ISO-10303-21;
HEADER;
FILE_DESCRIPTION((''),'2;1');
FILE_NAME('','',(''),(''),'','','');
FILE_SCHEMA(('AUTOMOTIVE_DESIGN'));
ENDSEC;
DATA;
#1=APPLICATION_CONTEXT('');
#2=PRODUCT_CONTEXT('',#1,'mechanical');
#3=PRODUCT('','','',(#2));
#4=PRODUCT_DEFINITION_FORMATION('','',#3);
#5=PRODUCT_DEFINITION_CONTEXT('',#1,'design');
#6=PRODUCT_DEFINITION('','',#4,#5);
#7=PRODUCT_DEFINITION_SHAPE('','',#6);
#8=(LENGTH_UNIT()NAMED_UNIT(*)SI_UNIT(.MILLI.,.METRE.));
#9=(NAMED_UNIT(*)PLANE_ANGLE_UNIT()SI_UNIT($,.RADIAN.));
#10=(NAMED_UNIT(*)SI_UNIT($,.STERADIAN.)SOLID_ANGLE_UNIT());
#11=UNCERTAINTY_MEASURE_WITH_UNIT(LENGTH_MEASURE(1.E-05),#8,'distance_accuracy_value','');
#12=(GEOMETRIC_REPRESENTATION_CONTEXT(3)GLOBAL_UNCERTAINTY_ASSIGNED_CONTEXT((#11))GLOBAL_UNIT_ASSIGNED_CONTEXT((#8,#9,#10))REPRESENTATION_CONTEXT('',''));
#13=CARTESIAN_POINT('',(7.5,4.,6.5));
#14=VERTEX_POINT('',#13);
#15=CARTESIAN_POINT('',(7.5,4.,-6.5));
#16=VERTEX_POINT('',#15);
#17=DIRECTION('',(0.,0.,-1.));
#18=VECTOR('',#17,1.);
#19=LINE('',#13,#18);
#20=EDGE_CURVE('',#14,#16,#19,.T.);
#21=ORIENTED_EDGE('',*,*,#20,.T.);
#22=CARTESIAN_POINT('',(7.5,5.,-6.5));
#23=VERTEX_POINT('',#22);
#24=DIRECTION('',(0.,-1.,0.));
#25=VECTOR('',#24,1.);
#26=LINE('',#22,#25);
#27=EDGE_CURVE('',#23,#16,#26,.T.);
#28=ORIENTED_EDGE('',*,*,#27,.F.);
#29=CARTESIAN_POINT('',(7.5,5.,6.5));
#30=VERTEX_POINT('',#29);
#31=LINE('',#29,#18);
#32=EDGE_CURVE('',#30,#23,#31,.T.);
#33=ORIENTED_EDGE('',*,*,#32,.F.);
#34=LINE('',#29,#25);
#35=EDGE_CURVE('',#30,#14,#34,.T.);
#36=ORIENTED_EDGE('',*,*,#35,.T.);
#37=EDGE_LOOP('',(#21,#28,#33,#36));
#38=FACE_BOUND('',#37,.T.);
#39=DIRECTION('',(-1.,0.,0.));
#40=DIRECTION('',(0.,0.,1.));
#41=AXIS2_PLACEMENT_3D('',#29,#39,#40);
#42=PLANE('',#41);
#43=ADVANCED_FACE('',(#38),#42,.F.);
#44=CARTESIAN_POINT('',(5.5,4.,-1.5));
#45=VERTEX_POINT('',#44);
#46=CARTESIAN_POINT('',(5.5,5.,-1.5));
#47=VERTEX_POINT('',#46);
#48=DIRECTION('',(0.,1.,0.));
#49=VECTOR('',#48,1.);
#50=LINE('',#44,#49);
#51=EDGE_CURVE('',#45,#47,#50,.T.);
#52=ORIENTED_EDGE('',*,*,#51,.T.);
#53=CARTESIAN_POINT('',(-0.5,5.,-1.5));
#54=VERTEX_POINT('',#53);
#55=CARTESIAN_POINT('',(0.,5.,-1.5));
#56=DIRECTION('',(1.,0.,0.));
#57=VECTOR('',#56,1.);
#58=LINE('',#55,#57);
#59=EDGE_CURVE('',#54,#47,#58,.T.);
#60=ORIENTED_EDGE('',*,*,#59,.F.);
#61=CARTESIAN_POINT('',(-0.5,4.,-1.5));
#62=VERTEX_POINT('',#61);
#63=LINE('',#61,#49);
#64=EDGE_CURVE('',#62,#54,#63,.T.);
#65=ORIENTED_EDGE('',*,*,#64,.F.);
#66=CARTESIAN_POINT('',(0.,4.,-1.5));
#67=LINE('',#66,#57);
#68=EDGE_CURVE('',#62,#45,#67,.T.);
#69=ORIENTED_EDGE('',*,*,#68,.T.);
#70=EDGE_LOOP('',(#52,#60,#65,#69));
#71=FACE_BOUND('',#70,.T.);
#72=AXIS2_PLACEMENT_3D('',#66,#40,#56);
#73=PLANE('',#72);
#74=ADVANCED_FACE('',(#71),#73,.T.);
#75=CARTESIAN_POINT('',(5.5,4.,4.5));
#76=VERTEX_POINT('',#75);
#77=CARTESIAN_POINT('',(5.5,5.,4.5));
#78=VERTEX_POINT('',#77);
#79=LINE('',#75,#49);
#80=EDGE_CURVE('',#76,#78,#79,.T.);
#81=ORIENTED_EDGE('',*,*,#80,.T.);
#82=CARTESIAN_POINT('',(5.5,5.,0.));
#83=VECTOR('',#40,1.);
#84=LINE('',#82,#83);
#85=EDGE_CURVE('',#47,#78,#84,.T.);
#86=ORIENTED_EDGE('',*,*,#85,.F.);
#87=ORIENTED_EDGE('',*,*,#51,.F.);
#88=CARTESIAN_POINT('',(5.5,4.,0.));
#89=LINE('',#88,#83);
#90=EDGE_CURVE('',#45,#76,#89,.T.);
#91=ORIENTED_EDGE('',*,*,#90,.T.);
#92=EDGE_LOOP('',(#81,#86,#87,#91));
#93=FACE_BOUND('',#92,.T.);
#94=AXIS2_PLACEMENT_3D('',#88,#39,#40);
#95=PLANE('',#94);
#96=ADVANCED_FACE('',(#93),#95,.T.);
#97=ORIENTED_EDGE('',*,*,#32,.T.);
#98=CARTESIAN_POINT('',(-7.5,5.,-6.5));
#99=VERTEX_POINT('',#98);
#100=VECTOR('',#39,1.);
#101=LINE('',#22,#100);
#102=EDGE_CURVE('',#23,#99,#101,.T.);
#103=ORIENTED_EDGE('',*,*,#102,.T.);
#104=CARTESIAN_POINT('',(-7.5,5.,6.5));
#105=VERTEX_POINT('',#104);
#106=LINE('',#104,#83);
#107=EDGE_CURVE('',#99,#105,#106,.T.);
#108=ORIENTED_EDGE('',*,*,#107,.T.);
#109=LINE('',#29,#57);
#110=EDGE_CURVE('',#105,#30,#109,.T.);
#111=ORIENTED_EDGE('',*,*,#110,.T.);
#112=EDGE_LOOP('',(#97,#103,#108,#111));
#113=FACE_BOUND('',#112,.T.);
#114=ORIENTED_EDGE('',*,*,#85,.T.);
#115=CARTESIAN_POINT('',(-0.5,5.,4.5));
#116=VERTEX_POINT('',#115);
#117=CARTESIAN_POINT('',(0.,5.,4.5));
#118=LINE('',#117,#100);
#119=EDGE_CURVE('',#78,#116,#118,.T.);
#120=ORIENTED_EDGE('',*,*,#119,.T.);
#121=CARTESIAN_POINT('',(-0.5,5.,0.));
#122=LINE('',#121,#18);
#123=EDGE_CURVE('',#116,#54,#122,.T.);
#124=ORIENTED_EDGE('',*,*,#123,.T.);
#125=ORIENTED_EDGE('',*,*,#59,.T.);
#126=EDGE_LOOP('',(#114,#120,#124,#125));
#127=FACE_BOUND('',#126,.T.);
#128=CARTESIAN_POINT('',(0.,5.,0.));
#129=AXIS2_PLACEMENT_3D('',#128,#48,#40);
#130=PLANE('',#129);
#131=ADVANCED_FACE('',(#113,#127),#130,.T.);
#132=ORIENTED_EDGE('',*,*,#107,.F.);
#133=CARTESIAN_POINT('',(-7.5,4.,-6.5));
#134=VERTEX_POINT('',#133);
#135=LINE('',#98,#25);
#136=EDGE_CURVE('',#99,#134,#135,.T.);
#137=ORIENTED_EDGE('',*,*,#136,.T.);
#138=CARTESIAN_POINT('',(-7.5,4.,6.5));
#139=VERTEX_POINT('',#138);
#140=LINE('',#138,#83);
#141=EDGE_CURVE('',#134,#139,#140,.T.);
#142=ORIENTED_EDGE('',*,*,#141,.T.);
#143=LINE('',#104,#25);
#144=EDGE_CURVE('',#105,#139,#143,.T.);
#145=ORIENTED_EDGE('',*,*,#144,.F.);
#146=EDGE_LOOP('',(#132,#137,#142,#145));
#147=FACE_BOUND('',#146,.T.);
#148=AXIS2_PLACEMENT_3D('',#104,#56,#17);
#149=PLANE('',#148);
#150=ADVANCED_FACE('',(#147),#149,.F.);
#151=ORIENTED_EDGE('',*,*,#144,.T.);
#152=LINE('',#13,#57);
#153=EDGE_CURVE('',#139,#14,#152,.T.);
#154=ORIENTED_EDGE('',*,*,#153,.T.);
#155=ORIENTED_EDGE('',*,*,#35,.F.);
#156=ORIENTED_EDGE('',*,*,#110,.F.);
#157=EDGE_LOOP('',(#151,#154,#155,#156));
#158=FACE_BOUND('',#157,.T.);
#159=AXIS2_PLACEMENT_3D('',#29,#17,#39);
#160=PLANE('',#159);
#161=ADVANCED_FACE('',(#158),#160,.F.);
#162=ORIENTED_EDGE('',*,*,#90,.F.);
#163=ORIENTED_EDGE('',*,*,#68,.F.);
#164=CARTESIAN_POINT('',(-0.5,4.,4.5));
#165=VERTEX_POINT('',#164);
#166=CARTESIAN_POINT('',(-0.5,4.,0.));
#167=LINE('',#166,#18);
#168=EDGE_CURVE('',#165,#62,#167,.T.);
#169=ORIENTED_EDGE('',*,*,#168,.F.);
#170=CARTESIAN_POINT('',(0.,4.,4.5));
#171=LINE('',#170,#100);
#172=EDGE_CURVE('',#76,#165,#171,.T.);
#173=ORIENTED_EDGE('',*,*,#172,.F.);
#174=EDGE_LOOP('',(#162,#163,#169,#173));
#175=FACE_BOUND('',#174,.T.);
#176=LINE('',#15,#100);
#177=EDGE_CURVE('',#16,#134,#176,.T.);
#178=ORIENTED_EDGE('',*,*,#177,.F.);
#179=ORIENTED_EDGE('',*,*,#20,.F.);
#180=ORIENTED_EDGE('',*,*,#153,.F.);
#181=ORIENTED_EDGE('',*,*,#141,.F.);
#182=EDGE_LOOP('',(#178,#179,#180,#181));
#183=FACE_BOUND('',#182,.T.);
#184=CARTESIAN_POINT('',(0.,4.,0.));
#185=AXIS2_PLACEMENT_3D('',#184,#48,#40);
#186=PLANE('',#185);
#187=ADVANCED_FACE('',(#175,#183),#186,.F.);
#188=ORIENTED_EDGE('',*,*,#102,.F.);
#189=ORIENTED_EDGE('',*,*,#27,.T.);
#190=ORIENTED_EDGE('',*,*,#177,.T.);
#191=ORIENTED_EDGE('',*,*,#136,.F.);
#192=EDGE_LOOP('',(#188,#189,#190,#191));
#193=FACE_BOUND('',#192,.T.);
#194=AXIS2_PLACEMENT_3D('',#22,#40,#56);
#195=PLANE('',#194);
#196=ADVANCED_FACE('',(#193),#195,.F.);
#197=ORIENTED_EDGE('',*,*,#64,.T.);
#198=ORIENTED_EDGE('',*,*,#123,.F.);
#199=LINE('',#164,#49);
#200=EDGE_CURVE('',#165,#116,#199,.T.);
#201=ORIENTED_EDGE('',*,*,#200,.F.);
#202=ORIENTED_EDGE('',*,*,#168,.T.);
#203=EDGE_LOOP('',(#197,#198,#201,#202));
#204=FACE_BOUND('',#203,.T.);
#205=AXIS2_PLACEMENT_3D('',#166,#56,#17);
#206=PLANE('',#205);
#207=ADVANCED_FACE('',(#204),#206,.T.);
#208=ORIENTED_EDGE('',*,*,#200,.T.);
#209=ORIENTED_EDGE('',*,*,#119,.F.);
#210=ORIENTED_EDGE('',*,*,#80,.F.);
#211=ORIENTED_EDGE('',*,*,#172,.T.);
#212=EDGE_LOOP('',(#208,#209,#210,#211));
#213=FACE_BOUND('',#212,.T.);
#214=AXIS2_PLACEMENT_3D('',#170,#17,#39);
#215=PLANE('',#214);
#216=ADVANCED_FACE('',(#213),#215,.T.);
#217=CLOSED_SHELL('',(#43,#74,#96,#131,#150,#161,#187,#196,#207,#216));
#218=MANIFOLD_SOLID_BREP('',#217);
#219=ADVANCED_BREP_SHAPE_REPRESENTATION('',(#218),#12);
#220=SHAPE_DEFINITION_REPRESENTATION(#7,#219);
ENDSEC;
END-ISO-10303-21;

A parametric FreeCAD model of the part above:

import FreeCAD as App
import Part
import Sketcher

doc = App.newDocument("Part")
body = doc.addObject("PartDesign::Body", "Body")

sketch1 = body.newObject("Sketcher::SketchObject", "Sketch")
sketch1.AttachmentSupport = (doc.getObject("XZ_Plane"), [""])
sketch1.MapMode = "FlatFace"
sketch1.addGeometry([
    Part.LineSegment(App.Vector(-8, -6, 0), App.Vector(-8, 6, 0)),
    Part.LineSegment(App.Vector(-8, 6, 0), App.Vector(8, 6, 0)),
    Part.LineSegment(App.Vector(8, 6, 0), App.Vector(8, -6, 0)),
    Part.LineSegment(App.Vector(8, -6, 0), App.Vector(-8, -6, 0)),
], False)
sketch1.addConstraint([
    Sketcher.Constraint("Coincident", 0, 2, 1, 1),
    Sketcher.Constraint("Coincident", 1, 2, 2, 1),
    Sketcher.Constraint("Coincident", 2, 2, 3, 1),
    Sketcher.Constraint("Coincident", 3, 2, 0, 1),
    Sketcher.Constraint("Vertical", 0),
    Sketcher.Constraint("Horizontal", 1),
    Sketcher.Constraint("Vertical", 2),
    Sketcher.Constraint("Horizontal", 3),
    Sketcher.Constraint("Symmetric", 0, 2, 2, 2, -1, 1),
    Sketcher.Constraint("DistanceX", 1, 1, 1, 2, 15.0),
    Sketcher.Constraint("DistanceY", 0, 1, 0, 2, 13.0),
])
pad1 = body.newObject("PartDesign::Pad", "Pad")
pad1.Profile = sketch1
pad1.Length = 4
pad1.Reversed = True

sketch2 = body.newObject("Sketcher::SketchObject", "Sketch001")
sketch2.AttachmentSupport = (doc.getObject("XZ_Plane"), [""])
sketch2.MapMode = "FlatFace"
sketch2.AttachmentOffset = App.Placement(App.Vector(0, 0, -1), App.Rotation())
sketch2.addGeometry([
    Part.LineSegment(App.Vector(-6, -10, 0), App.Vector(-6, 6, 0)),
    Part.LineSegment(App.Vector(-6, 6, 0), App.Vector(6, 6, 0)),
    Part.LineSegment(App.Vector(6, 6, 0), App.Vector(6, -10, 0)),
    Part.LineSegment(App.Vector(6, -10, 0), App.Vector(-6, -10, 0)),
], False)
sketch2.addConstraint([
    Sketcher.Constraint("Coincident", 0, 2, 1, 1),
    Sketcher.Constraint("Coincident", 1, 2, 2, 1),
    Sketcher.Constraint("Coincident", 2, 2, 3, 1),
    Sketcher.Constraint("Coincident", 3, 2, 0, 1),
    Sketcher.Constraint("Vertical", 0),
    Sketcher.Constraint("Horizontal", 1),
    Sketcher.Constraint("Vertical", 2),
    Sketcher.Constraint("Horizontal", 3),
    Sketcher.Constraint("DistanceX", 1, 1, 1, 2, 13.0),
    Sketcher.Constraint("DistanceY", 0, 1, 0, 2, 15.0),
    Sketcher.Constraint("DistanceX", 0, 2, -1, 1, 6.5),
    Sketcher.Constraint("DistanceY", -1, 1, 0, 2, 5.5),
])
pocket1 = body.newObject("PartDesign::Pocket", "Pocket")
pocket1.Profile = sketch2
pocket1.Length = 4

sketch3 = body.newObject("Sketcher::SketchObject", "Sketch002")
sketch3.AttachmentSupport = (doc.getObject("XZ_Plane"), [""])
sketch3.MapMode = "FlatFace"
sketch3.addGeometry([
    Part.LineSegment(App.Vector(-8, 6, 0), App.Vector(-8, -6, 0)),
    Part.LineSegment(App.Vector(-8, -6, 0), App.Vector(8, -6, 0)),
    Part.LineSegment(App.Vector(8, -6, 0), App.Vector(8, 6, 0)),
    Part.LineSegment(App.Vector(8, 6, 0), App.Vector(-8, 6, 0)),
], False)
sketch3.addConstraint([
    Sketcher.Constraint("Coincident", 0, 2, 1, 1),
    Sketcher.Constraint("Coincident", 1, 2, 2, 1),
    Sketcher.Constraint("Coincident", 2, 2, 3, 1),
    Sketcher.Constraint("Coincident", 3, 2, 0, 1),
    Sketcher.Constraint("Vertical", 0),
    Sketcher.Constraint("Horizontal", 1),
    Sketcher.Constraint("Vertical", 2),
    Sketcher.Constraint("Horizontal", 3),
    Sketcher.Constraint("Symmetric", 0, 2, 2, 2, -1, 1),
    Sketcher.Constraint("DistanceX", 1, 1, 1, 2, 15.0),
    Sketcher.Constraint("DistanceY", 0, 2, 0, 1, 13.0),
])
pocket2 = body.newObject("PartDesign::Pocket", "Pocket001")
pocket2.Profile = sketch3
pocket2.Length = 4
body2 = doc.addObject("PartDesign::Body", "Body001")

sketch4 = body2.newObject("Sketcher::SketchObject", "Sketch003")
sketch4.AttachmentSupport = (doc.getObject("XZ_Plane001"), [""])
sketch4.MapMode = "FlatFace"
sketch4.AttachmentOffset = App.Placement(App.Vector(0, 0, -4), App.Rotation())
sketch4.addGeometry([
    Part.LineSegment(App.Vector(-8, -6, 0), App.Vector(-8, 6, 0)),
    Part.LineSegment(App.Vector(-8, 6, 0), App.Vector(8, 6, 0)),
    Part.LineSegment(App.Vector(8, 6, 0), App.Vector(8, -6, 0)),
    Part.LineSegment(App.Vector(8, -6, 0), App.Vector(-8, -6, 0)),
], False)
sketch4.addConstraint([
    Sketcher.Constraint("Coincident", 0, 2, 1, 1),
    Sketcher.Constraint("Coincident", 1, 2, 2, 1),
    Sketcher.Constraint("Coincident", 2, 2, 3, 1),
    Sketcher.Constraint("Coincident", 3, 2, 0, 1),
    Sketcher.Constraint("Vertical", 0),
    Sketcher.Constraint("Horizontal", 1),
    Sketcher.Constraint("Vertical", 2),
    Sketcher.Constraint("Horizontal", 3),
    Sketcher.Constraint("Symmetric", 0, 2, 2, 2, -1, 1),
    Sketcher.Constraint("DistanceX", 1, 1, 1, 2, 15.0),
    Sketcher.Constraint("DistanceY", 0, 1, 0, 2, 13.0),
])
pad2 = body2.newObject("PartDesign::Pad", "Pad001")
pad2.Profile = sketch4
pad2.Length = 1
pad2.Reversed = True

sketch5 = body2.newObject("Sketcher::SketchObject", "Sketch004")
sketch5.AttachmentSupport = (doc.getObject("XZ_Plane001"), [""])
sketch5.MapMode = "FlatFace"
sketch5.AttachmentOffset = App.Placement(App.Vector(0, 0, -5), App.Rotation())
sketch5.addGeometry([
    Part.LineSegment(App.Vector(0, -2, 0), App.Vector(0, 4, 0)),
    Part.LineSegment(App.Vector(0, 4, 0), App.Vector(6, 4, 0)),
    Part.LineSegment(App.Vector(6, 4, 0), App.Vector(6, -2, 0)),
    Part.LineSegment(App.Vector(6, -2, 0), App.Vector(0, -2, 0)),
], False)
sketch5.addConstraint([
    Sketcher.Constraint("Coincident", 0, 2, 1, 1),
    Sketcher.Constraint("Coincident", 1, 2, 2, 1),
    Sketcher.Constraint("Coincident", 2, 2, 3, 1),
    Sketcher.Constraint("Coincident", 3, 2, 0, 1),
    Sketcher.Constraint("Vertical", 0),
    Sketcher.Constraint("Horizontal", 1),
    Sketcher.Constraint("Vertical", 2),
    Sketcher.Constraint("Horizontal", 3),
    Sketcher.Constraint("Equal", 3, 0),
    Sketcher.Constraint("DistanceX", 1, 1, 1, 2, 6.0),
    Sketcher.Constraint("DistanceX", 0, 2, -1, 1, 0.5),
    Sketcher.Constraint("DistanceY", -1, 1, 0, 2, 4.5),
])
pocket3 = body2.newObject("PartDesign::Pocket", "Pocket002")
pocket3.Profile = sketch5
pocket3.Length = 1
pocket3.Reversed = True

doc.recompute()
